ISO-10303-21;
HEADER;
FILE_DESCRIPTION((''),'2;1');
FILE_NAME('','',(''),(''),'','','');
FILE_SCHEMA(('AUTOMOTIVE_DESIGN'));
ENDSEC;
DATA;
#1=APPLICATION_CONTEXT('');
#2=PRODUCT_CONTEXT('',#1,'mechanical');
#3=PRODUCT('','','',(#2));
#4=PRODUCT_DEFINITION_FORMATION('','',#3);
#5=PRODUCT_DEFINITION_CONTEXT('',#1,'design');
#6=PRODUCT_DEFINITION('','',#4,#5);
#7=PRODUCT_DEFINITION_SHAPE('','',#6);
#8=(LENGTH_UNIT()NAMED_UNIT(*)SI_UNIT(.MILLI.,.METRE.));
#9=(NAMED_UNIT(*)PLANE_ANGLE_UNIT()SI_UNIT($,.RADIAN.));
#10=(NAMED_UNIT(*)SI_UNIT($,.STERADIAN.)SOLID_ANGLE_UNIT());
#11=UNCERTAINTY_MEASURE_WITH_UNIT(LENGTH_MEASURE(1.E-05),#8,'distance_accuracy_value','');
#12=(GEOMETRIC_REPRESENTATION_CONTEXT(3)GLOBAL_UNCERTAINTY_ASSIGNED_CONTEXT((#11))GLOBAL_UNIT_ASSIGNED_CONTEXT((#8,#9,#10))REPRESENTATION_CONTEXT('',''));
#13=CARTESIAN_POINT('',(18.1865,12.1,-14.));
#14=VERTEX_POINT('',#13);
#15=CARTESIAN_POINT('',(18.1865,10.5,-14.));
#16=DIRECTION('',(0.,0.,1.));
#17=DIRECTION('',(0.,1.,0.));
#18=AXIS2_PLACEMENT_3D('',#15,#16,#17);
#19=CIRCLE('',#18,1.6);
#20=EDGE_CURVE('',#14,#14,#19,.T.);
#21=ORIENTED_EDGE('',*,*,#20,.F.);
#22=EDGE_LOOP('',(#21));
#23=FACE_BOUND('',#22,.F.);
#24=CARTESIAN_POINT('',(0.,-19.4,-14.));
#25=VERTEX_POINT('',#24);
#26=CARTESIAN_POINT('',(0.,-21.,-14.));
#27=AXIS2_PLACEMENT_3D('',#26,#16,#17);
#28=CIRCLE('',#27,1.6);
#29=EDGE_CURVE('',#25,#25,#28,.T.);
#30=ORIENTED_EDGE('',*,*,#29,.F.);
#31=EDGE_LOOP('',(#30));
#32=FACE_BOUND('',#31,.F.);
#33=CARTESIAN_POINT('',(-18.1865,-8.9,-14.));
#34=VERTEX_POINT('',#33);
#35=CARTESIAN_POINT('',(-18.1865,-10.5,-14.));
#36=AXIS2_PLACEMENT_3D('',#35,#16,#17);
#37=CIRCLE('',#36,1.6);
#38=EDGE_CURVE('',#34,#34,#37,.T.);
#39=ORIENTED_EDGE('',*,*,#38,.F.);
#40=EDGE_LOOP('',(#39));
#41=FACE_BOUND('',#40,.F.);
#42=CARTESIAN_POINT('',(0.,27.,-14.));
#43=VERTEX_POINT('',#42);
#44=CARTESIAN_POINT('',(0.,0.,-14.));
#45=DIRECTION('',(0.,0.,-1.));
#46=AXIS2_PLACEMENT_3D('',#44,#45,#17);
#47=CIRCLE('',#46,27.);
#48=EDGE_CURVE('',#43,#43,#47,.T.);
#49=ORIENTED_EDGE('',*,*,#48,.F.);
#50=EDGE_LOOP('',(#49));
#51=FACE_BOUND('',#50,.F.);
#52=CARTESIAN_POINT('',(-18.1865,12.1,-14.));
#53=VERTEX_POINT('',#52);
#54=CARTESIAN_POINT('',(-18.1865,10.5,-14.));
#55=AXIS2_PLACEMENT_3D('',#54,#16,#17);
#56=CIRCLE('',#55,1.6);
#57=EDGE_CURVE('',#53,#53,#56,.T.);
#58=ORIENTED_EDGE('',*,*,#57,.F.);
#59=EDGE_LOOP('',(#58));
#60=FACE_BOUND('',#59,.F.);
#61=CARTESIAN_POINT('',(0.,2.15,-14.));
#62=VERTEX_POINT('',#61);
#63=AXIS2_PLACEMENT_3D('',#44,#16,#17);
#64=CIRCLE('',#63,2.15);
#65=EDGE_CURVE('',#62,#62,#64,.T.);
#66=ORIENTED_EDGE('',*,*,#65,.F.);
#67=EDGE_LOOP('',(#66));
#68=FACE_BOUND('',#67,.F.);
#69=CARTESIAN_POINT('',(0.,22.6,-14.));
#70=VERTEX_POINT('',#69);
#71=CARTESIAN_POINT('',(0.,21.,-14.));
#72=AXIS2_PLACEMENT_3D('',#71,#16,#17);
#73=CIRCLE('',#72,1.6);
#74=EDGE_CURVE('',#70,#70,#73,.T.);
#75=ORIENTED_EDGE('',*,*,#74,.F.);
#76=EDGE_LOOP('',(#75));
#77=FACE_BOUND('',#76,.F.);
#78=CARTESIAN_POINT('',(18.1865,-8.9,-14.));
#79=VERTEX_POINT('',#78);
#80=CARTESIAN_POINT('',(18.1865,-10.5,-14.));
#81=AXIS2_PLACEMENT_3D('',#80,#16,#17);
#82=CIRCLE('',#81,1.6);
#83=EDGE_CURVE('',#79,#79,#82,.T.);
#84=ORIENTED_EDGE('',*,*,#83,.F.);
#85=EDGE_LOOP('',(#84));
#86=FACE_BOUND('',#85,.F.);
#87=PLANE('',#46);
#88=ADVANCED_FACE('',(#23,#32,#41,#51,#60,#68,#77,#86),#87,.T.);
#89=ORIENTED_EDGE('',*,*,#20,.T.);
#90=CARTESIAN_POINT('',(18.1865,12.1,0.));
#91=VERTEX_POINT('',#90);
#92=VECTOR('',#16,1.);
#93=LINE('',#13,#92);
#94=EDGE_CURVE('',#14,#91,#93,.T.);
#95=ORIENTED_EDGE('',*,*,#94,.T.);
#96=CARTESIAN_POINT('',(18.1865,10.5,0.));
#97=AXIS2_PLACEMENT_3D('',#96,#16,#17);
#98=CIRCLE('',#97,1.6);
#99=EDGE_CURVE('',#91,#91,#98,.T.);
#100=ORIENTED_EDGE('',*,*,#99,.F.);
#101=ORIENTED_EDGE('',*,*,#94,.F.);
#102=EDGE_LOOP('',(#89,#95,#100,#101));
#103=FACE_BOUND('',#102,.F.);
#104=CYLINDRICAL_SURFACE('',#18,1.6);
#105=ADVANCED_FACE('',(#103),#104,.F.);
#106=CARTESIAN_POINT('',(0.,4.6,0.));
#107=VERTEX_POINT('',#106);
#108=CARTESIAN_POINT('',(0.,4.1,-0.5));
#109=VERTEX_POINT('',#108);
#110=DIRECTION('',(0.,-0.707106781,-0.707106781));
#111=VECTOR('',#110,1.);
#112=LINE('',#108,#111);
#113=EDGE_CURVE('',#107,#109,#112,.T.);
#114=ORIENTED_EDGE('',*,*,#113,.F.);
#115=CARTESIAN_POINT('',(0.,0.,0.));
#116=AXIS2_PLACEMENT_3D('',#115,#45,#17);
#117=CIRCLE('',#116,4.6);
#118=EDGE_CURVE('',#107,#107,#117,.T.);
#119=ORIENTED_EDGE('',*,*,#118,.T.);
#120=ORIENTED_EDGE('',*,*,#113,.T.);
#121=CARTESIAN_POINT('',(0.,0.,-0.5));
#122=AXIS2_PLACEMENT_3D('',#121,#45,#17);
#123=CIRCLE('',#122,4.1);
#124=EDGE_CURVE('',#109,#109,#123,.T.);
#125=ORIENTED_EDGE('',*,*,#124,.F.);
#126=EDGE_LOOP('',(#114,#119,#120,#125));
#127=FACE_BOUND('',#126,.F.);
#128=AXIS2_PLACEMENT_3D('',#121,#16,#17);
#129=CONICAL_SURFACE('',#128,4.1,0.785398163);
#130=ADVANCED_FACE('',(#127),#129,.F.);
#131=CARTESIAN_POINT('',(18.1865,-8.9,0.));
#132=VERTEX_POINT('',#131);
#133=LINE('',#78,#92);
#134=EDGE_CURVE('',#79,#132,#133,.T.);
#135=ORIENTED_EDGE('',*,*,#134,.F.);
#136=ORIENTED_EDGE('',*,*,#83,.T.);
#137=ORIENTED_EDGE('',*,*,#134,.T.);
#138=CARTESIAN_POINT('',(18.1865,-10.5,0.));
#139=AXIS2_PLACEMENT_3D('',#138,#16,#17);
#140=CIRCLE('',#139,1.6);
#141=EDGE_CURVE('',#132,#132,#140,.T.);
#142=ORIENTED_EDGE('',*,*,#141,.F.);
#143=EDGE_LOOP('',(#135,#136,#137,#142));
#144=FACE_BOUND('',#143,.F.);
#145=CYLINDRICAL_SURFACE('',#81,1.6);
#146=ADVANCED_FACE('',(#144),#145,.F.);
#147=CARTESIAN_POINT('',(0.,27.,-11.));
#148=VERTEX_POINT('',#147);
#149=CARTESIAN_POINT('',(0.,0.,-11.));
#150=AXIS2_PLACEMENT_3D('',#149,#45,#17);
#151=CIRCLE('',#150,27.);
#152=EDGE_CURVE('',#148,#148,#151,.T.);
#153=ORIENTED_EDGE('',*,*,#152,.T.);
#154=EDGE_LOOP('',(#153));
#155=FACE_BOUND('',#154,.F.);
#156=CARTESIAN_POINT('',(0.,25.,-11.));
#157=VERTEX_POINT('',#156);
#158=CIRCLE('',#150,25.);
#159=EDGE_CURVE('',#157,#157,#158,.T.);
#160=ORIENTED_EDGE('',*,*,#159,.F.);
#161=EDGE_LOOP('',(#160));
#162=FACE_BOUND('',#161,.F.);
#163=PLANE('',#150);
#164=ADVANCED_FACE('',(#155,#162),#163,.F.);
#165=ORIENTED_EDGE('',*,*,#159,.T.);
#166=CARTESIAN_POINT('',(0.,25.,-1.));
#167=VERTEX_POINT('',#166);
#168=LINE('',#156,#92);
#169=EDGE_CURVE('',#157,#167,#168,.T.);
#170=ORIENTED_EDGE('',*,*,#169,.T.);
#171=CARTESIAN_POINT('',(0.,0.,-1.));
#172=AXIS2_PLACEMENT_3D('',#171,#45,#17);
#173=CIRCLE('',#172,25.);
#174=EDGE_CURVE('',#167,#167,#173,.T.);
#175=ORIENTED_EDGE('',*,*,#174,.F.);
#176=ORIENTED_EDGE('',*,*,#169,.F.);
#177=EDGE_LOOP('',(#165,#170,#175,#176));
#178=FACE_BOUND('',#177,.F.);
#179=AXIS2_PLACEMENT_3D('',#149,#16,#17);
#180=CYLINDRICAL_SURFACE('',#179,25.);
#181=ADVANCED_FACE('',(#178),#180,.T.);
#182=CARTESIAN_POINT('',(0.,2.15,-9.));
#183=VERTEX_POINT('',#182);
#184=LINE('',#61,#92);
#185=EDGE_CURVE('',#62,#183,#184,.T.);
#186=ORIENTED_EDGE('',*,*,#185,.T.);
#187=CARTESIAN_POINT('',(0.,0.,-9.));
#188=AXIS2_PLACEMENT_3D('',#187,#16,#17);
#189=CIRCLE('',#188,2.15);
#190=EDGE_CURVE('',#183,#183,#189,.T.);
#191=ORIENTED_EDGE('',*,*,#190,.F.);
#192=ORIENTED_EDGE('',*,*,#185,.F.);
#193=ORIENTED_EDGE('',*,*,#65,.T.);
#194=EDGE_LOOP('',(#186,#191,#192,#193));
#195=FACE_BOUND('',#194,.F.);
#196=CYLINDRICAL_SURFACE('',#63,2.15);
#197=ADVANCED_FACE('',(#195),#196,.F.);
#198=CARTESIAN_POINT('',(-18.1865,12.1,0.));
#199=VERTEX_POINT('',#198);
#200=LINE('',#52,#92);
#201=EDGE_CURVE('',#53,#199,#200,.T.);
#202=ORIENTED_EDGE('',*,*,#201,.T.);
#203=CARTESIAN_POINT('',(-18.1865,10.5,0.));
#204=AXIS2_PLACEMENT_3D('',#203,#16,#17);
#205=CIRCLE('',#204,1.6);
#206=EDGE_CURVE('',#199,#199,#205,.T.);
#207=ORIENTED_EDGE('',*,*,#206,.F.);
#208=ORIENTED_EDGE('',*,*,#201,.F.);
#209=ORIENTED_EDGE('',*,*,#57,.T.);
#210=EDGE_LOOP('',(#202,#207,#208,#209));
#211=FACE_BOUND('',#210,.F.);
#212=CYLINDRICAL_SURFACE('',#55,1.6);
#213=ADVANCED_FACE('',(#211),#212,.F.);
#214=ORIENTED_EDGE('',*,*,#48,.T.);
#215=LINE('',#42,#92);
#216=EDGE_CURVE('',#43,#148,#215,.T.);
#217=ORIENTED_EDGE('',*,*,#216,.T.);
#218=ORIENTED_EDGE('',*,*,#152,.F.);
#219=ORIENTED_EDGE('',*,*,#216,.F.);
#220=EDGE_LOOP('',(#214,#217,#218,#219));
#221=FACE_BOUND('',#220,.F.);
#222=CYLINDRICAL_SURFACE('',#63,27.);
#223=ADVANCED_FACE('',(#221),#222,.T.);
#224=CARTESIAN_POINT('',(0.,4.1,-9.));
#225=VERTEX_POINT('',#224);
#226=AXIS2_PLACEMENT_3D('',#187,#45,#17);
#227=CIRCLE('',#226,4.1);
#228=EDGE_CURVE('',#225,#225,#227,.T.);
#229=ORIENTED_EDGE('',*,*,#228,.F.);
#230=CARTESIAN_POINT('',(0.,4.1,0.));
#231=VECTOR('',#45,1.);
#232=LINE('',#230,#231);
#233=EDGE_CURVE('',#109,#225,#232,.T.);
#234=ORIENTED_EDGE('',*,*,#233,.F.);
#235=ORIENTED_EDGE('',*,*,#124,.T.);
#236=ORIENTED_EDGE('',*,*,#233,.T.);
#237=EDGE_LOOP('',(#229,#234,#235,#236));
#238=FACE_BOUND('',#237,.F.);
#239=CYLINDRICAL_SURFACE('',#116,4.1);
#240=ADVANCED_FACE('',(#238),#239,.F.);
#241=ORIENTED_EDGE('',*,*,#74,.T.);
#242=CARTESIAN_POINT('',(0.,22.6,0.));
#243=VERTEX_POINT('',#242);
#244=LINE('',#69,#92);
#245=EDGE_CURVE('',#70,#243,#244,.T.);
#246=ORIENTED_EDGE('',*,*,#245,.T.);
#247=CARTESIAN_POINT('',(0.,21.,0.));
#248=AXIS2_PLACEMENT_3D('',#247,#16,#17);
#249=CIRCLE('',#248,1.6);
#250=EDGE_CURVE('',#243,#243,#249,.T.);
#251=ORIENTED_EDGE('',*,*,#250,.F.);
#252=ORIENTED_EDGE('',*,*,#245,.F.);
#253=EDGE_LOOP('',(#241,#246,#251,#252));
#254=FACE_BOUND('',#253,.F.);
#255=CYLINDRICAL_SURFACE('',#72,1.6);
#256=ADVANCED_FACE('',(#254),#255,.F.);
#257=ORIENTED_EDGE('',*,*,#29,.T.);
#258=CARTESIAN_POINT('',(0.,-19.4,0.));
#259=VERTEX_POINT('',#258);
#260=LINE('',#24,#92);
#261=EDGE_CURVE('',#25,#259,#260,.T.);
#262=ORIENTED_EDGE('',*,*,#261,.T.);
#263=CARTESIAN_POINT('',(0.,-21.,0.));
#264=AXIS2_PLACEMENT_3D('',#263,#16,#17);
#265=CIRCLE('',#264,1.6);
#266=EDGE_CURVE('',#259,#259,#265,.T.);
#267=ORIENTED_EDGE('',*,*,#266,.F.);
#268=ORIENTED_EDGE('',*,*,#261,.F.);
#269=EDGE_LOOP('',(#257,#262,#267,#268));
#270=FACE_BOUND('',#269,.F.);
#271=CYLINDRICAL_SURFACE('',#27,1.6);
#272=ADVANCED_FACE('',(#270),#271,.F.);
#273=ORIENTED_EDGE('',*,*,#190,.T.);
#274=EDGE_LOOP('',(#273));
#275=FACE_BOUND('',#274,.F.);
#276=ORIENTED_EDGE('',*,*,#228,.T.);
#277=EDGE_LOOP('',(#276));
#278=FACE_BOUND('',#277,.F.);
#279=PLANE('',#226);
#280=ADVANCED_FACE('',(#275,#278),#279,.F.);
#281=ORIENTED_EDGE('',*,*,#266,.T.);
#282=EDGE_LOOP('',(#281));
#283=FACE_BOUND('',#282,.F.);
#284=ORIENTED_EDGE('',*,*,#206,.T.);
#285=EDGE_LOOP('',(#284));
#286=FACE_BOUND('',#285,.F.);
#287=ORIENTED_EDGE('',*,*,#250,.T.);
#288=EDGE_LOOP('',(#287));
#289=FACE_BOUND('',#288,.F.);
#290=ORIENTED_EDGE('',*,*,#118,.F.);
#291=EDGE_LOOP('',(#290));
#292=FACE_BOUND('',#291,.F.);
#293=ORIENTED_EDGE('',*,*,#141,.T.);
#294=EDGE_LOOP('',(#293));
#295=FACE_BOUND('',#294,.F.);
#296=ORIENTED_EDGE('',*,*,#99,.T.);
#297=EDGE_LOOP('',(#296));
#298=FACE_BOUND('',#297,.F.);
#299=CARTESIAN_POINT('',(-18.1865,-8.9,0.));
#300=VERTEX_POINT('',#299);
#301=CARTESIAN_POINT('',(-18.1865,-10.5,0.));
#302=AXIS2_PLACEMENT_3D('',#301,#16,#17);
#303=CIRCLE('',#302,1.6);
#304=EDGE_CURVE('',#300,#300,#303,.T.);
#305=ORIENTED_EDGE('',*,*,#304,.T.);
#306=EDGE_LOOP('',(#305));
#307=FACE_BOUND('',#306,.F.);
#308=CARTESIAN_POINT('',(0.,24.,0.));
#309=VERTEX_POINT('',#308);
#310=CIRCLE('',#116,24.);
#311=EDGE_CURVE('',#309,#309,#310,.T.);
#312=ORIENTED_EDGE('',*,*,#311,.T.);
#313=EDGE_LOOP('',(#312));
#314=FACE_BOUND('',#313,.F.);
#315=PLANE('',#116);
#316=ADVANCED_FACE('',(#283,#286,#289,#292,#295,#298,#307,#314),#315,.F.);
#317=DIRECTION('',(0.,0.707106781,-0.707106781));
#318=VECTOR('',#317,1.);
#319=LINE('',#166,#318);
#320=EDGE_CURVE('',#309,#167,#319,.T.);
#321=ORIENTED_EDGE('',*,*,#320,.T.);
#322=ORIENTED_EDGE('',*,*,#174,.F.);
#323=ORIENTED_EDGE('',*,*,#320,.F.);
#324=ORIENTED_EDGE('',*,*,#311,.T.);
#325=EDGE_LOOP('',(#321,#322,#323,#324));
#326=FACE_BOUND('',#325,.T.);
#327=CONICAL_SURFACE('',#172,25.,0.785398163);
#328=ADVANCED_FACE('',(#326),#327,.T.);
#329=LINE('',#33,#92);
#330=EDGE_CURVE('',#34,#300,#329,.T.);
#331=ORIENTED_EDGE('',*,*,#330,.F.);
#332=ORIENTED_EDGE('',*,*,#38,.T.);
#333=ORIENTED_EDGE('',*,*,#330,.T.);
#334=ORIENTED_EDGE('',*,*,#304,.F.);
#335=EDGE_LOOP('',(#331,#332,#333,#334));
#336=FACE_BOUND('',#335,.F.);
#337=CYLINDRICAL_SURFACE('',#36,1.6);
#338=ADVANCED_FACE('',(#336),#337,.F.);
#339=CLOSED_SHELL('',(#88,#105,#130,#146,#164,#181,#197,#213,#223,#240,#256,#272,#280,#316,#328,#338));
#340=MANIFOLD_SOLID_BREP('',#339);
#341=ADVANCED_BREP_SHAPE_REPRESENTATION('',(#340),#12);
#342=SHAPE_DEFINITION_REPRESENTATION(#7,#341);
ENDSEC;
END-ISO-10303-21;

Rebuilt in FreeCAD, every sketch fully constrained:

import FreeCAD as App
import Part
import Sketcher


def edges_at(feature, points):
    """Names of the edges that pass closest to the given points."""
    edges = feature.Shape.Edges
    near = lambda p: min(range(len(edges)), key=lambda i: edges[i].distToShape(Part.Vertex(*p))[0])
    return sorted({f"Edge{near(p) + 1}" for p in points})

doc = App.newDocument("Part")
body = doc.addObject("PartDesign::Body", "Body")

sketch1 = body.newObject("Sketcher::SketchObject", "Sketch")
sketch1.AttachmentSupport = (doc.getObject("YZ_Plane"), [""])
sketch1.MapMode = "FlatFace"
sketch1.addGeometry([
    Part.LineSegment(App.Vector(4.1, -9, 0), App.Vector(0, -9, 0)),
    Part.LineSegment(App.Vector(0, -9, 0), App.Vector(0, -14, 0)),
    Part.LineSegment(App.Vector(0, -14, 0), App.Vector(27, -14, 0)),
    Part.LineSegment(App.Vector(27, -14, 0), App.Vector(27, -11, 0)),
    Part.LineSegment(App.Vector(27, -11, 0), App.Vector(25, -11, 0)),
    Part.LineSegment(App.Vector(25, -11, 0), App.Vector(25, 0, 0)),
    Part.LineSegment(App.Vector(25, 0, 0), App.Vector(4.1, 0, 0)),
    Part.LineSegment(App.Vector(4.1, 0, 0), App.Vector(4.1, -9, 0)),
], False)
sketch1.addConstraint([
    Sketcher.Constraint("Coincident", 0, 2, 1, 1),
    Sketcher.Constraint("Coincident", 1, 2, 2, 1),
    Sketcher.Constraint("Coincident", 2, 2, 3, 1),
    Sketcher.Constraint("Coincident", 3, 2, 4, 1),
    Sketcher.Constraint("Coincident", 4, 2, 5, 1),
    Sketcher.Constraint("Coincident", 5, 2, 6, 1),
    Sketcher.Constraint("Coincident", 6, 2, 7, 1),
    Sketcher.Constraint("Coincident", 7, 2, 0, 1),
    Sketcher.Constraint("Horizontal", 0),
    Sketcher.Constraint("Vertical", 1),
    Sketcher.Constraint("Horizontal", 2),
    Sketcher.Constraint("Vertical", 3),
    Sketcher.Constraint("Horizontal", 4),
    Sketcher.Constraint("Vertical", 5),
    Sketcher.Constraint("Horizontal", 6),
    Sketcher.Constraint("Vertical", 7),
    Sketcher.Constraint("PointOnObject", 0, 2, -2),
    Sketcher.Constraint("PointOnObject", 5, 2, -1),
    Sketcher.Constraint("DistanceX", 4, 2, 4, 1, 2.0),
    Sketcher.Constraint("DistanceY", 3, 1, 3, 2, 3.0),
    Sketcher.Constraint("DistanceY", 5, 1, 5, 2, 11.0),
    Sketcher.Constraint("DistanceY", 7, 2, 7, 1, 9.0),
    Sketcher.Constraint("DistanceX", 0, 2, 0, 1, 4.1),
    Sketcher.Constraint("DistanceX", -1, 1, 4, 2, 25.0),
])
revolution = body.newObject("PartDesign::Revolution", "Revolution")
revolution.Profile = sketch1
revolution.ReferenceAxis = (sketch1, ["V_Axis"])
revolution.Angle = 360
doc.recompute()

chamfer = body.newObject("PartDesign::Chamfer", "Chamfer")
chamfer.Base = (revolution, edges_at(revolution, [(0, -25, 0)]))
chamfer.Size = 1

sketch2 = body.newObject("Sketcher::SketchObject", "Sketch001")
sketch2.AttachmentSupport = (doc.getObject("XY_Plane"), [""])
sketch2.MapMode = "FlatFace"
sketch2.AttachmentOffset = App.Placement(App.Vector(0, 0, -14), App.Rotation())
sketch2.addGeometry(Part.Circle(App.Vector(0, 0, 0), App.Vector(0, 0, 1), 2.1), False)
sketch2.addConstraint([
    Sketcher.Constraint("Coincident", 0, 3, -1, 1),
    Sketcher.Constraint("Diameter", 0, 4.3),
])
doc.recompute()
hole = body.newObject("PartDesign::Hole", "Hole")
hole.Profile = sketch2
hole.ThreadType = "None"
hole.Diameter = 4.3
hole.DepthType = "ThroughAll"
hole.Reversed = True

sketch3 = body.newObject("Sketcher::SketchObject", "Sketch002")
sketch3.AttachmentSupport = (doc.getObject("XY_Plane"), [""])
sketch3.MapMode = "FlatFace"
sketch3.AttachmentOffset = App.Placement(App.Vector(0, 0, -14), App.Rotation())
sketch3.addGeometry([
    Part.Circle(App.Vector(0, -21, 0), App.Vector(0, 0, 1), 1.6),
    Part.Circle(App.Vector(-18.2, -10.5, 0), App.Vector(0, 0, 1), 1.6),
    Part.Circle(App.Vector(-18.2, 10.5, 0), App.Vector(0, 0, 1), 1.6),
    Part.Circle(App.Vector(0, 21, 0), App.Vector(0, 0, 1), 1.6),
    Part.Circle(App.Vector(18.2, 10.5, 0), App.Vector(0, 0, 1), 1.6),
    Part.Circle(App.Vector(18.2, -10.5, 0), App.Vector(0, 0, 1), 1.6),
], False)
sketch3.addConstraint([
    Sketcher.Constraint("Equal", 0, 1),
    Sketcher.Constraint("Equal", 1, 2),
    Sketcher.Constraint("Equal", 2, 3),
    Sketcher.Constraint("Equal", 3, 4),
    Sketcher.Constraint("Equal", 4, 5),
    Sketcher.Constraint("Symmetric", 0, 3, 3, 3, -1, 1),
    Sketcher.Constraint("Symmetric", 1, 3, 4, 3, -1, 1),
    Sketcher.Constraint("Symmetric", 2, 3, 5, 3, -1, 1),
    Sketcher.Constraint("Symmetric", 2, 3, 4, 3, -2),
    Sketcher.Constraint("PointOnObject", 0, 3, -2),
    Sketcher.Constraint("Diameter", 0, 3.2),
    Sketcher.Constraint("DistanceY", 0, 3, -1, 1, 21.0),
    Sketcher.Constraint("DistanceY", 1, 3, 2, 3, 21.0),
    Sketcher.Constraint("DistanceX", 2, 3, 4, 3, 36.373),
])
doc.recompute()
hole2 = body.newObject("PartDesign::Hole", "Hole001")
hole2.Profile = sketch3
hole2.ThreadType = "None"
hole2.Diameter = 3.2
hole2.DepthType = "ThroughAll"
hole2.Reversed = True
doc.recompute()

chamfer2 = body.newObject("PartDesign::Chamfer", "Chamfer001")
chamfer2.Base = (hole2, edges_at(hole2, [(0, -4.1, 0)]))
chamfer2.Size = 0.5

doc.recompute()
